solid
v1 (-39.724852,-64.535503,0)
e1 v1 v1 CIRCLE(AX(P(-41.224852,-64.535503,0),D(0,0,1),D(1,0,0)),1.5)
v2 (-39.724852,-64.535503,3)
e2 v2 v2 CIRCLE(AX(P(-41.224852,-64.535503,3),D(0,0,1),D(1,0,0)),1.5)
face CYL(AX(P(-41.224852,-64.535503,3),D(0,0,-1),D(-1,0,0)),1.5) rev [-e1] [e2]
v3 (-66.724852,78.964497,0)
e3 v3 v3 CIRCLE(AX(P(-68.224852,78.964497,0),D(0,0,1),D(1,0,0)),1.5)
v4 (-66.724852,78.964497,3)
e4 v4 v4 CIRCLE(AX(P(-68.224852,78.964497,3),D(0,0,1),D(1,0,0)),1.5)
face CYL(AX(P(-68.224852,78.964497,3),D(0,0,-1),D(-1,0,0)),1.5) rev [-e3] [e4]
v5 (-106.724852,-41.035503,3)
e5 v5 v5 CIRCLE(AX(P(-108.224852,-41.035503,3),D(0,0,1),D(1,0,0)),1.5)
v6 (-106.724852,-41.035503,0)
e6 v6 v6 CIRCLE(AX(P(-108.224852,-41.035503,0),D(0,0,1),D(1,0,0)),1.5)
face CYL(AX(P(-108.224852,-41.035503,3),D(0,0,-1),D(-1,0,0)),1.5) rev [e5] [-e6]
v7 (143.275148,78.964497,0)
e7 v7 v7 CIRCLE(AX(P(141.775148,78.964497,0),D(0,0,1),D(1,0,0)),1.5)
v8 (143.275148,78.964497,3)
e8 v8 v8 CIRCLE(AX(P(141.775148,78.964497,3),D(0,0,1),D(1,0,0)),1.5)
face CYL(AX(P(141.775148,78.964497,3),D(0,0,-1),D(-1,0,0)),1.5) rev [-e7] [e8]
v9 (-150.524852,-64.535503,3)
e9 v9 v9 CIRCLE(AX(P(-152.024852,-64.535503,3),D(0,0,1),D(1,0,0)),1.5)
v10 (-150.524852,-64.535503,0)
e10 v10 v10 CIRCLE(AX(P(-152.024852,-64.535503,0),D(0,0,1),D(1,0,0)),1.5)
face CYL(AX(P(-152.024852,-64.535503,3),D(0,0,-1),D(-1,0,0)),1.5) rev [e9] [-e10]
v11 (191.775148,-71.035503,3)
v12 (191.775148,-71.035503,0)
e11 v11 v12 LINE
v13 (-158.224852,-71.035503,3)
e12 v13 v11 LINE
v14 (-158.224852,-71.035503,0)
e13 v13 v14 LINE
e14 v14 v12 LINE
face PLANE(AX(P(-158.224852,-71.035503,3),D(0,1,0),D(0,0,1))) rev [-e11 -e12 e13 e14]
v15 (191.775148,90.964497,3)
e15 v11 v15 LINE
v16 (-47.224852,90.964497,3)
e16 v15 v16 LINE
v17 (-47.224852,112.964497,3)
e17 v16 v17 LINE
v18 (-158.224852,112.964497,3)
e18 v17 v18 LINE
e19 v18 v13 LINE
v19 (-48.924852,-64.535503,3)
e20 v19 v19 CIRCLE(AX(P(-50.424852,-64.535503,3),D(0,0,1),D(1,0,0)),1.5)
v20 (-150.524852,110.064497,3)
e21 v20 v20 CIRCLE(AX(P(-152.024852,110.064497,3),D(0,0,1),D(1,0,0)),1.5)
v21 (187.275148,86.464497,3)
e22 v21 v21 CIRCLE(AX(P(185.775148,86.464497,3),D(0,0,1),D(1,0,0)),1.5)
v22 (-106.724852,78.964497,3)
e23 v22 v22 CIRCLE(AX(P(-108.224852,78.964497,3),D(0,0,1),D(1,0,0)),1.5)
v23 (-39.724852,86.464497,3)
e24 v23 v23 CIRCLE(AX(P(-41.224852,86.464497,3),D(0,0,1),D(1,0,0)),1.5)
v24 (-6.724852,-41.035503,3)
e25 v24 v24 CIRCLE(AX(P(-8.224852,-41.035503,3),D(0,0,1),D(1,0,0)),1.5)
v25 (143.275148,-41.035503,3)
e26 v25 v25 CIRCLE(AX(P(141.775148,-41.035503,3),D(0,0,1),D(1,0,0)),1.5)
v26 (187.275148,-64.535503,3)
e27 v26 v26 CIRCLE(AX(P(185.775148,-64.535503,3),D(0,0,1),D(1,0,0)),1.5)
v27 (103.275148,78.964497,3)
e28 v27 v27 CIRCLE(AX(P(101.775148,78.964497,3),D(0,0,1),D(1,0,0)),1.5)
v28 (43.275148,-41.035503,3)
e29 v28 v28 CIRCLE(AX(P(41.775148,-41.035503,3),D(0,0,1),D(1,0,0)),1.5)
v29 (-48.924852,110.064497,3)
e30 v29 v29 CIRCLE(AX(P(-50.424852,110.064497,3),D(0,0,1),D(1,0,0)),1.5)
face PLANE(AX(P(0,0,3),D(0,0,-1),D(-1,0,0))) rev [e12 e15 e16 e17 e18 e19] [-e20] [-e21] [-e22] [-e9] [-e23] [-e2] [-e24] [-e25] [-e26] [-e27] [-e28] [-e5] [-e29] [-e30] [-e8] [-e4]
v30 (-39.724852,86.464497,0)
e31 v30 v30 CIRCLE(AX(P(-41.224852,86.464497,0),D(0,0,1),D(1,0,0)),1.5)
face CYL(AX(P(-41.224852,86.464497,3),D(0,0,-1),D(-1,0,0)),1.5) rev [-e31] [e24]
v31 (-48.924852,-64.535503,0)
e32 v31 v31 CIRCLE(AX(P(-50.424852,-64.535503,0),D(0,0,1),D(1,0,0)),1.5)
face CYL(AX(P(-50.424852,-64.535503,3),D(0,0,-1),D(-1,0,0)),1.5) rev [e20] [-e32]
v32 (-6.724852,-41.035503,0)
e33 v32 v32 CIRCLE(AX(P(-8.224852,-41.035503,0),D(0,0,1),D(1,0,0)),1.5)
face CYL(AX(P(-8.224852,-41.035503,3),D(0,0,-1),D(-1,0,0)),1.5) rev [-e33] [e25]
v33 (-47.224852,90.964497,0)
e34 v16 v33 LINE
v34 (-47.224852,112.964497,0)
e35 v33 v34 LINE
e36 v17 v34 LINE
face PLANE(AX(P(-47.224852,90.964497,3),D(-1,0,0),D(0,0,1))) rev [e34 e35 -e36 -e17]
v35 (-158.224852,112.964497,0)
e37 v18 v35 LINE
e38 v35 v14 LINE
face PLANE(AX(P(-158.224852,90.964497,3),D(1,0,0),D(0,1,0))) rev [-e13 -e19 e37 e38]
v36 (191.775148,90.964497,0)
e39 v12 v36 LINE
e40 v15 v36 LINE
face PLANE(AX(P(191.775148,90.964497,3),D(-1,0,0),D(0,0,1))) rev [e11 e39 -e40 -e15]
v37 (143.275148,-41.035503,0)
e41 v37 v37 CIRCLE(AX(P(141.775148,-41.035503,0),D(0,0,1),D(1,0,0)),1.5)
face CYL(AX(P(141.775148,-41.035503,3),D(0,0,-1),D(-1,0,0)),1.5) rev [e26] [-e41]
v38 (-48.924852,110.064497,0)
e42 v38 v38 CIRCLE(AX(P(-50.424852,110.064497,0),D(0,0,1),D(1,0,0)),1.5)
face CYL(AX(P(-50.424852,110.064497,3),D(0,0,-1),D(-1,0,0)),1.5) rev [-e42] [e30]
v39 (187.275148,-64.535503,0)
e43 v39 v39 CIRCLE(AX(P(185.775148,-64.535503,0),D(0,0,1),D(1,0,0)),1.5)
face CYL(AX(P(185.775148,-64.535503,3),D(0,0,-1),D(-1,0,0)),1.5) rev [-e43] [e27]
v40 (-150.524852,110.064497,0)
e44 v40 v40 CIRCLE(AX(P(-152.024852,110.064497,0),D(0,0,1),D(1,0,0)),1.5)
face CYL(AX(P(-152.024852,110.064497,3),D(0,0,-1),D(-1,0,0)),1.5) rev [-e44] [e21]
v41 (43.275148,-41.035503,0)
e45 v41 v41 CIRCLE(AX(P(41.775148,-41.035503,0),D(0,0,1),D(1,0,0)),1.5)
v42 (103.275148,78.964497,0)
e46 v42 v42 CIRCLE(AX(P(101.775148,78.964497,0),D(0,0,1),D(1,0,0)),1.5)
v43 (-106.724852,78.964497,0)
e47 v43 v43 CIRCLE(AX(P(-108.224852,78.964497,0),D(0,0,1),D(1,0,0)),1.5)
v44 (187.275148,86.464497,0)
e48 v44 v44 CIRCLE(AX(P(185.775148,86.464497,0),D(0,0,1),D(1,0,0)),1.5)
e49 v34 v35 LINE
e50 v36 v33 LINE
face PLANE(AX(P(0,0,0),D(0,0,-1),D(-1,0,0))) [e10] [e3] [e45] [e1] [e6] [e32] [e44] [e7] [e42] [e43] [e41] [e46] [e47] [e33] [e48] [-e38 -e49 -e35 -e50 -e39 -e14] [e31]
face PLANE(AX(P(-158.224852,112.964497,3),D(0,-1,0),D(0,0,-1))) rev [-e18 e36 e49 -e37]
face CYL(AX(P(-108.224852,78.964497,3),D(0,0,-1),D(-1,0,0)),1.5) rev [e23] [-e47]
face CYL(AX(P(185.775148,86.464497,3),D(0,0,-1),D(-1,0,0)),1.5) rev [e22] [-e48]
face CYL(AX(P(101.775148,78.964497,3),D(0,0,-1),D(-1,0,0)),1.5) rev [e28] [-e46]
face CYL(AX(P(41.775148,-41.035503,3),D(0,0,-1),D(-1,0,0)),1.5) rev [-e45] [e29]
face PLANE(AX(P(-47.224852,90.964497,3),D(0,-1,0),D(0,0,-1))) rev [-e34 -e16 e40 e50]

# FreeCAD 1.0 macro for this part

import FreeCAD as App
import Part
import Sketcher
from FreeCAD import Vector
Q = App.Units.Quantity


def add_polygon(sketch, points):
    """Adds a closed chain of lines whose ends are joined by coincident constraints."""
    first, n = sketch.GeometryCount, len(points)
    for a, b in zip(points, points[1:] + points[:1]):
        sketch.addGeometry(Part.LineSegment(App.Vector(*a, 0), App.Vector(*b, 0)), False)
    for i in range(n):
        sketch.addConstraint(Sketcher.Constraint("Coincident", first + i, 2, first + (i + 1) % n, 1))

doc = App.newDocument("Part")
body = doc.addObject("PartDesign::Body", "Body")

# Sketch on XY plane
sketch1 = doc.addObject("Sketcher::SketchObject", "Sketch")
body.addObject(sketch1)
sketch1.AttachmentSupport = (doc.XY_Plane, [""])
sketch1.MapMode = "FlatFace"
add_polygon(sketch1, [(191.775148, 90.964497), (-47.224852, 90.964497), (-47.224852, 112.964497), (-158.224852, 112.964497), (-158.224852, -71.035503), (191.775148, -71.035503)])  # lines 0-5
sketch1.addGeometry(Part.Circle(Vector(185.775148, -64.535503, 0), Vector(0, 0, 1), 1.5), False)  # 6
sketch1.addGeometry(Part.Circle(Vector(141.775148, -41.035503, 0), Vector(0, 0, 1), 1.5), False)  # 7
sketch1.addGeometry(Part.Circle(Vector(41.775148, -41.035503, 0), Vector(0, 0, 1), 1.5), False)  # 8
sketch1.addGeometry(Part.Circle(Vector(-41.224852, -64.535503, 0), Vector(0, 0, 1), 1.5), False)  # 9
sketch1.addGeometry(Part.Circle(Vector(-50.424852, -64.535503, 0), Vector(0, 0, 1), 1.5), False)  # 10
sketch1.addGeometry(Part.Circle(Vector(-8.224852, -41.035503, 0), Vector(0, 0, 1), 1.5), False)  # 11
sketch1.addGeometry(Part.Circle(Vector(-152.024852, -64.535503, 0), Vector(0, 0, 1), 1.5), False)  # 12
sketch1.addGeometry(Part.Circle(Vector(-108.224852, -41.035503, 0), Vector(0, 0, 1), 1.5), False)  # 13
sketch1.addGeometry(Part.Circle(Vector(185.775148, 86.464497, 0), Vector(0, 0, 1), 1.5), False)  # 14
sketch1.addGeometry(Part.Circle(Vector(141.775148, 78.964497, 0), Vector(0, 0, 1), 1.5), False)  # 15
sketch1.addGeometry(Part.Circle(Vector(101.775148, 78.964497, 0), Vector(0, 0, 1), 1.5), False)  # 16
sketch1.addGeometry(Part.Circle(Vector(-41.224852, 86.464497, 0), Vector(0, 0, 1), 1.5), False)  # 17
sketch1.addGeometry(Part.Circle(Vector(-68.224852, 78.964497, 0), Vector(0, 0, 1), 1.5), False)  # 18
sketch1.addGeometry(Part.Circle(Vector(-50.424852, 110.064497, 0), Vector(0, 0, 1), 1.5), False)  # 19
sketch1.addGeometry(Part.Circle(Vector(-108.224852, 78.964497, 0), Vector(0, 0, 1), 1.5), False)  # 20
sketch1.addGeometry(Part.Circle(Vector(-152.024852, 110.064497, 0), Vector(0, 0, 1), 1.5), False)  # 21
sketch1.addConstraint(Sketcher.Constraint("Horizontal", 0))
sketch1.addConstraint(Sketcher.Constraint("Vertical", 1))
sketch1.addConstraint(Sketcher.Constraint("Horizontal", 2))
sketch1.addConstraint(Sketcher.Constraint("Vertical", 3))
sketch1.addConstraint(Sketcher.Constraint("Horizontal", 4))
sketch1.addConstraint(Sketcher.Constraint("Vertical", 5))
sketch1.addConstraint(Sketcher.Constraint("Equal", 6, 7))
sketch1.addConstraint(Sketcher.Constraint("Equal", 7, 8))
sketch1.addConstraint(Sketcher.Constraint("Equal", 8, 9))
sketch1.addConstraint(Sketcher.Constraint("Equal", 9, 10))
sketch1.addConstraint(Sketcher.Constraint("Equal", 10, 11))
sketch1.addConstraint(Sketcher.Constraint("Equal", 11, 12))
sketch1.addConstraint(Sketcher.Constraint("Equal", 12, 13))
sketch1.addConstraint(Sketcher.Constraint("Equal", 13, 14))
sketch1.addConstraint(Sketcher.Constraint("Equal", 14, 15))
sketch1.addConstraint(Sketcher.Constraint("Equal", 15, 16))
sketch1.addConstraint(Sketcher.Constraint("Equal", 16, 17))
sketch1.addConstraint(Sketcher.Constraint("Equal", 17, 18))
sketch1.addConstraint(Sketcher.Constraint("Equal", 18, 19))
sketch1.addConstraint(Sketcher.Constraint("Equal", 19, 20))
sketch1.addConstraint(Sketcher.Constraint("Equal", 20, 21))
sketch1.addConstraint(Sketcher.Constraint("Horizontal", 7, 3, 8, 3))
sketch1.addConstraint(Sketcher.Constraint("Horizontal", 6, 3, 9, 3))
sketch1.addConstraint(Sketcher.Constraint("Horizontal", 9, 3, 10, 3))
sketch1.addConstraint(Sketcher.Constraint("Horizontal", 8, 3, 11, 3))
sketch1.addConstraint(Sketcher.Constraint("Horizontal", 10, 3, 12, 3))
sketch1.addConstraint(Sketcher.Constraint("Horizontal", 11, 3, 13, 3))
sketch1.addConstraint(Sketcher.Constraint("Horizontal", 15, 3, 16, 3))
sketch1.addConstraint(Sketcher.Constraint("Horizontal", 14, 3, 17, 3))
sketch1.addConstraint(Sketcher.Constraint("Horizontal", 16, 3, 18, 3))
sketch1.addConstraint(Sketcher.Constraint("Horizontal", 18, 3, 20, 3))
sketch1.addConstraint(Sketcher.Constraint("Horizontal", 19, 3, 21, 3))
sketch1.addConstraint(Sketcher.Constraint("Vertical", 6, 3, 14, 3))
sketch1.addConstraint(Sketcher.Constraint("Vertical", 7, 3, 15, 3))
sketch1.addConstraint(Sketcher.Constraint("Vertical", 9, 3, 17, 3))
sketch1.addConstraint(Sketcher.Constraint("Vertical", 10, 3, 19, 3))
sketch1.addConstraint(Sketcher.Constraint("Vertical", 13, 3, 20, 3))
sketch1.addConstraint(Sketcher.Constraint("Vertical", 12, 3, 21, 3))
sketch1.addConstraint(Sketcher.Constraint("Diameter", 6, Q("3 mm")))
sketch1.addConstraint(Sketcher.Constraint("DistanceX", 0, 2, 0, 1, Q("239 mm")))
sketch1.addConstraint(Sketcher.Constraint("DistanceX", 2, 2, 2, 1, Q("111 mm")))
sketch1.addConstraint(Sketcher.Constraint("DistanceY", 1, 1, 1, 2, Q("22 mm")))
sketch1.addConstraint(Sketcher.Constraint("DistanceY", 3, 2, 3, 1, Q("184 mm")))
sketch1.addConstraint(Sketcher.Constraint("DistanceX", 7, 3, 6, 3, Q("44 mm")))
sketch1.addConstraint(Sketcher.Constraint("DistanceX", 8, 3, 7, 3, Q("100 mm")))
sketch1.addConstraint(Sketcher.Constraint("DistanceX", 9, 3, 8, 3, Q("83 mm")))
sketch1.addConstraint(Sketcher.Constraint("DistanceX", 9, 3, 11, 3, Q("33 mm")))
sketch1.addConstraint(Sketcher.Constraint("DistanceX", 13, 3, 9, 3, Q("67 mm")))
sketch1.addConstraint(Sketcher.Constraint("DistanceY", 6, 3, 14, 3, Q("151 mm")))
sketch1.addConstraint(Sketcher.Constraint("DistanceY", 7, 3, 15, 3, Q("120 mm")))
sketch1.addConstraint(Sketcher.Constraint("DistanceX", 16, 3, 15, 3, Q("40 mm")))
sketch1.addConstraint(Sketcher.Constraint("DistanceX", 18, 3, 17, 3, Q("27 mm")))
sketch1.addConstraint(Sketcher.Constraint("DistanceX", 0, 2, 17, 3, Q("6 mm")))
sketch1.addConstraint(Sketcher.Constraint("DistanceY", 18, 3, 0, 2, Q("12 mm")))
sketch1.addConstraint(Sketcher.Constraint("DistanceY", 6, 3, 7, 3, Q("23.5 mm")))
sketch1.addConstraint(Sketcher.Constraint("DistanceX", 10, 3, 9, 3, Q("9.2 mm")))
sketch1.addConstraint(Sketcher.Constraint("DistanceX", 12, 3, 10, 3, Q("101.6 mm")))
sketch1.addConstraint(Sketcher.Constraint("DistanceY", 17, 3, 19, 3, Q("23.6 mm")))
sketch1.addConstraint(Sketcher.Constraint("DistanceX", -1, 1, 6, 3, Q("185.775148 mm")))
sketch1.addConstraint(Sketcher.Constraint("DistanceY", 6, 3, -1, 1, Q("64.535503 mm")))
pad1 = doc.addObject("PartDesign::Pad", "Pad")
body.addObject(pad1)
pad1.Profile = sketch1
pad1.Length = 3

doc.recompute()
